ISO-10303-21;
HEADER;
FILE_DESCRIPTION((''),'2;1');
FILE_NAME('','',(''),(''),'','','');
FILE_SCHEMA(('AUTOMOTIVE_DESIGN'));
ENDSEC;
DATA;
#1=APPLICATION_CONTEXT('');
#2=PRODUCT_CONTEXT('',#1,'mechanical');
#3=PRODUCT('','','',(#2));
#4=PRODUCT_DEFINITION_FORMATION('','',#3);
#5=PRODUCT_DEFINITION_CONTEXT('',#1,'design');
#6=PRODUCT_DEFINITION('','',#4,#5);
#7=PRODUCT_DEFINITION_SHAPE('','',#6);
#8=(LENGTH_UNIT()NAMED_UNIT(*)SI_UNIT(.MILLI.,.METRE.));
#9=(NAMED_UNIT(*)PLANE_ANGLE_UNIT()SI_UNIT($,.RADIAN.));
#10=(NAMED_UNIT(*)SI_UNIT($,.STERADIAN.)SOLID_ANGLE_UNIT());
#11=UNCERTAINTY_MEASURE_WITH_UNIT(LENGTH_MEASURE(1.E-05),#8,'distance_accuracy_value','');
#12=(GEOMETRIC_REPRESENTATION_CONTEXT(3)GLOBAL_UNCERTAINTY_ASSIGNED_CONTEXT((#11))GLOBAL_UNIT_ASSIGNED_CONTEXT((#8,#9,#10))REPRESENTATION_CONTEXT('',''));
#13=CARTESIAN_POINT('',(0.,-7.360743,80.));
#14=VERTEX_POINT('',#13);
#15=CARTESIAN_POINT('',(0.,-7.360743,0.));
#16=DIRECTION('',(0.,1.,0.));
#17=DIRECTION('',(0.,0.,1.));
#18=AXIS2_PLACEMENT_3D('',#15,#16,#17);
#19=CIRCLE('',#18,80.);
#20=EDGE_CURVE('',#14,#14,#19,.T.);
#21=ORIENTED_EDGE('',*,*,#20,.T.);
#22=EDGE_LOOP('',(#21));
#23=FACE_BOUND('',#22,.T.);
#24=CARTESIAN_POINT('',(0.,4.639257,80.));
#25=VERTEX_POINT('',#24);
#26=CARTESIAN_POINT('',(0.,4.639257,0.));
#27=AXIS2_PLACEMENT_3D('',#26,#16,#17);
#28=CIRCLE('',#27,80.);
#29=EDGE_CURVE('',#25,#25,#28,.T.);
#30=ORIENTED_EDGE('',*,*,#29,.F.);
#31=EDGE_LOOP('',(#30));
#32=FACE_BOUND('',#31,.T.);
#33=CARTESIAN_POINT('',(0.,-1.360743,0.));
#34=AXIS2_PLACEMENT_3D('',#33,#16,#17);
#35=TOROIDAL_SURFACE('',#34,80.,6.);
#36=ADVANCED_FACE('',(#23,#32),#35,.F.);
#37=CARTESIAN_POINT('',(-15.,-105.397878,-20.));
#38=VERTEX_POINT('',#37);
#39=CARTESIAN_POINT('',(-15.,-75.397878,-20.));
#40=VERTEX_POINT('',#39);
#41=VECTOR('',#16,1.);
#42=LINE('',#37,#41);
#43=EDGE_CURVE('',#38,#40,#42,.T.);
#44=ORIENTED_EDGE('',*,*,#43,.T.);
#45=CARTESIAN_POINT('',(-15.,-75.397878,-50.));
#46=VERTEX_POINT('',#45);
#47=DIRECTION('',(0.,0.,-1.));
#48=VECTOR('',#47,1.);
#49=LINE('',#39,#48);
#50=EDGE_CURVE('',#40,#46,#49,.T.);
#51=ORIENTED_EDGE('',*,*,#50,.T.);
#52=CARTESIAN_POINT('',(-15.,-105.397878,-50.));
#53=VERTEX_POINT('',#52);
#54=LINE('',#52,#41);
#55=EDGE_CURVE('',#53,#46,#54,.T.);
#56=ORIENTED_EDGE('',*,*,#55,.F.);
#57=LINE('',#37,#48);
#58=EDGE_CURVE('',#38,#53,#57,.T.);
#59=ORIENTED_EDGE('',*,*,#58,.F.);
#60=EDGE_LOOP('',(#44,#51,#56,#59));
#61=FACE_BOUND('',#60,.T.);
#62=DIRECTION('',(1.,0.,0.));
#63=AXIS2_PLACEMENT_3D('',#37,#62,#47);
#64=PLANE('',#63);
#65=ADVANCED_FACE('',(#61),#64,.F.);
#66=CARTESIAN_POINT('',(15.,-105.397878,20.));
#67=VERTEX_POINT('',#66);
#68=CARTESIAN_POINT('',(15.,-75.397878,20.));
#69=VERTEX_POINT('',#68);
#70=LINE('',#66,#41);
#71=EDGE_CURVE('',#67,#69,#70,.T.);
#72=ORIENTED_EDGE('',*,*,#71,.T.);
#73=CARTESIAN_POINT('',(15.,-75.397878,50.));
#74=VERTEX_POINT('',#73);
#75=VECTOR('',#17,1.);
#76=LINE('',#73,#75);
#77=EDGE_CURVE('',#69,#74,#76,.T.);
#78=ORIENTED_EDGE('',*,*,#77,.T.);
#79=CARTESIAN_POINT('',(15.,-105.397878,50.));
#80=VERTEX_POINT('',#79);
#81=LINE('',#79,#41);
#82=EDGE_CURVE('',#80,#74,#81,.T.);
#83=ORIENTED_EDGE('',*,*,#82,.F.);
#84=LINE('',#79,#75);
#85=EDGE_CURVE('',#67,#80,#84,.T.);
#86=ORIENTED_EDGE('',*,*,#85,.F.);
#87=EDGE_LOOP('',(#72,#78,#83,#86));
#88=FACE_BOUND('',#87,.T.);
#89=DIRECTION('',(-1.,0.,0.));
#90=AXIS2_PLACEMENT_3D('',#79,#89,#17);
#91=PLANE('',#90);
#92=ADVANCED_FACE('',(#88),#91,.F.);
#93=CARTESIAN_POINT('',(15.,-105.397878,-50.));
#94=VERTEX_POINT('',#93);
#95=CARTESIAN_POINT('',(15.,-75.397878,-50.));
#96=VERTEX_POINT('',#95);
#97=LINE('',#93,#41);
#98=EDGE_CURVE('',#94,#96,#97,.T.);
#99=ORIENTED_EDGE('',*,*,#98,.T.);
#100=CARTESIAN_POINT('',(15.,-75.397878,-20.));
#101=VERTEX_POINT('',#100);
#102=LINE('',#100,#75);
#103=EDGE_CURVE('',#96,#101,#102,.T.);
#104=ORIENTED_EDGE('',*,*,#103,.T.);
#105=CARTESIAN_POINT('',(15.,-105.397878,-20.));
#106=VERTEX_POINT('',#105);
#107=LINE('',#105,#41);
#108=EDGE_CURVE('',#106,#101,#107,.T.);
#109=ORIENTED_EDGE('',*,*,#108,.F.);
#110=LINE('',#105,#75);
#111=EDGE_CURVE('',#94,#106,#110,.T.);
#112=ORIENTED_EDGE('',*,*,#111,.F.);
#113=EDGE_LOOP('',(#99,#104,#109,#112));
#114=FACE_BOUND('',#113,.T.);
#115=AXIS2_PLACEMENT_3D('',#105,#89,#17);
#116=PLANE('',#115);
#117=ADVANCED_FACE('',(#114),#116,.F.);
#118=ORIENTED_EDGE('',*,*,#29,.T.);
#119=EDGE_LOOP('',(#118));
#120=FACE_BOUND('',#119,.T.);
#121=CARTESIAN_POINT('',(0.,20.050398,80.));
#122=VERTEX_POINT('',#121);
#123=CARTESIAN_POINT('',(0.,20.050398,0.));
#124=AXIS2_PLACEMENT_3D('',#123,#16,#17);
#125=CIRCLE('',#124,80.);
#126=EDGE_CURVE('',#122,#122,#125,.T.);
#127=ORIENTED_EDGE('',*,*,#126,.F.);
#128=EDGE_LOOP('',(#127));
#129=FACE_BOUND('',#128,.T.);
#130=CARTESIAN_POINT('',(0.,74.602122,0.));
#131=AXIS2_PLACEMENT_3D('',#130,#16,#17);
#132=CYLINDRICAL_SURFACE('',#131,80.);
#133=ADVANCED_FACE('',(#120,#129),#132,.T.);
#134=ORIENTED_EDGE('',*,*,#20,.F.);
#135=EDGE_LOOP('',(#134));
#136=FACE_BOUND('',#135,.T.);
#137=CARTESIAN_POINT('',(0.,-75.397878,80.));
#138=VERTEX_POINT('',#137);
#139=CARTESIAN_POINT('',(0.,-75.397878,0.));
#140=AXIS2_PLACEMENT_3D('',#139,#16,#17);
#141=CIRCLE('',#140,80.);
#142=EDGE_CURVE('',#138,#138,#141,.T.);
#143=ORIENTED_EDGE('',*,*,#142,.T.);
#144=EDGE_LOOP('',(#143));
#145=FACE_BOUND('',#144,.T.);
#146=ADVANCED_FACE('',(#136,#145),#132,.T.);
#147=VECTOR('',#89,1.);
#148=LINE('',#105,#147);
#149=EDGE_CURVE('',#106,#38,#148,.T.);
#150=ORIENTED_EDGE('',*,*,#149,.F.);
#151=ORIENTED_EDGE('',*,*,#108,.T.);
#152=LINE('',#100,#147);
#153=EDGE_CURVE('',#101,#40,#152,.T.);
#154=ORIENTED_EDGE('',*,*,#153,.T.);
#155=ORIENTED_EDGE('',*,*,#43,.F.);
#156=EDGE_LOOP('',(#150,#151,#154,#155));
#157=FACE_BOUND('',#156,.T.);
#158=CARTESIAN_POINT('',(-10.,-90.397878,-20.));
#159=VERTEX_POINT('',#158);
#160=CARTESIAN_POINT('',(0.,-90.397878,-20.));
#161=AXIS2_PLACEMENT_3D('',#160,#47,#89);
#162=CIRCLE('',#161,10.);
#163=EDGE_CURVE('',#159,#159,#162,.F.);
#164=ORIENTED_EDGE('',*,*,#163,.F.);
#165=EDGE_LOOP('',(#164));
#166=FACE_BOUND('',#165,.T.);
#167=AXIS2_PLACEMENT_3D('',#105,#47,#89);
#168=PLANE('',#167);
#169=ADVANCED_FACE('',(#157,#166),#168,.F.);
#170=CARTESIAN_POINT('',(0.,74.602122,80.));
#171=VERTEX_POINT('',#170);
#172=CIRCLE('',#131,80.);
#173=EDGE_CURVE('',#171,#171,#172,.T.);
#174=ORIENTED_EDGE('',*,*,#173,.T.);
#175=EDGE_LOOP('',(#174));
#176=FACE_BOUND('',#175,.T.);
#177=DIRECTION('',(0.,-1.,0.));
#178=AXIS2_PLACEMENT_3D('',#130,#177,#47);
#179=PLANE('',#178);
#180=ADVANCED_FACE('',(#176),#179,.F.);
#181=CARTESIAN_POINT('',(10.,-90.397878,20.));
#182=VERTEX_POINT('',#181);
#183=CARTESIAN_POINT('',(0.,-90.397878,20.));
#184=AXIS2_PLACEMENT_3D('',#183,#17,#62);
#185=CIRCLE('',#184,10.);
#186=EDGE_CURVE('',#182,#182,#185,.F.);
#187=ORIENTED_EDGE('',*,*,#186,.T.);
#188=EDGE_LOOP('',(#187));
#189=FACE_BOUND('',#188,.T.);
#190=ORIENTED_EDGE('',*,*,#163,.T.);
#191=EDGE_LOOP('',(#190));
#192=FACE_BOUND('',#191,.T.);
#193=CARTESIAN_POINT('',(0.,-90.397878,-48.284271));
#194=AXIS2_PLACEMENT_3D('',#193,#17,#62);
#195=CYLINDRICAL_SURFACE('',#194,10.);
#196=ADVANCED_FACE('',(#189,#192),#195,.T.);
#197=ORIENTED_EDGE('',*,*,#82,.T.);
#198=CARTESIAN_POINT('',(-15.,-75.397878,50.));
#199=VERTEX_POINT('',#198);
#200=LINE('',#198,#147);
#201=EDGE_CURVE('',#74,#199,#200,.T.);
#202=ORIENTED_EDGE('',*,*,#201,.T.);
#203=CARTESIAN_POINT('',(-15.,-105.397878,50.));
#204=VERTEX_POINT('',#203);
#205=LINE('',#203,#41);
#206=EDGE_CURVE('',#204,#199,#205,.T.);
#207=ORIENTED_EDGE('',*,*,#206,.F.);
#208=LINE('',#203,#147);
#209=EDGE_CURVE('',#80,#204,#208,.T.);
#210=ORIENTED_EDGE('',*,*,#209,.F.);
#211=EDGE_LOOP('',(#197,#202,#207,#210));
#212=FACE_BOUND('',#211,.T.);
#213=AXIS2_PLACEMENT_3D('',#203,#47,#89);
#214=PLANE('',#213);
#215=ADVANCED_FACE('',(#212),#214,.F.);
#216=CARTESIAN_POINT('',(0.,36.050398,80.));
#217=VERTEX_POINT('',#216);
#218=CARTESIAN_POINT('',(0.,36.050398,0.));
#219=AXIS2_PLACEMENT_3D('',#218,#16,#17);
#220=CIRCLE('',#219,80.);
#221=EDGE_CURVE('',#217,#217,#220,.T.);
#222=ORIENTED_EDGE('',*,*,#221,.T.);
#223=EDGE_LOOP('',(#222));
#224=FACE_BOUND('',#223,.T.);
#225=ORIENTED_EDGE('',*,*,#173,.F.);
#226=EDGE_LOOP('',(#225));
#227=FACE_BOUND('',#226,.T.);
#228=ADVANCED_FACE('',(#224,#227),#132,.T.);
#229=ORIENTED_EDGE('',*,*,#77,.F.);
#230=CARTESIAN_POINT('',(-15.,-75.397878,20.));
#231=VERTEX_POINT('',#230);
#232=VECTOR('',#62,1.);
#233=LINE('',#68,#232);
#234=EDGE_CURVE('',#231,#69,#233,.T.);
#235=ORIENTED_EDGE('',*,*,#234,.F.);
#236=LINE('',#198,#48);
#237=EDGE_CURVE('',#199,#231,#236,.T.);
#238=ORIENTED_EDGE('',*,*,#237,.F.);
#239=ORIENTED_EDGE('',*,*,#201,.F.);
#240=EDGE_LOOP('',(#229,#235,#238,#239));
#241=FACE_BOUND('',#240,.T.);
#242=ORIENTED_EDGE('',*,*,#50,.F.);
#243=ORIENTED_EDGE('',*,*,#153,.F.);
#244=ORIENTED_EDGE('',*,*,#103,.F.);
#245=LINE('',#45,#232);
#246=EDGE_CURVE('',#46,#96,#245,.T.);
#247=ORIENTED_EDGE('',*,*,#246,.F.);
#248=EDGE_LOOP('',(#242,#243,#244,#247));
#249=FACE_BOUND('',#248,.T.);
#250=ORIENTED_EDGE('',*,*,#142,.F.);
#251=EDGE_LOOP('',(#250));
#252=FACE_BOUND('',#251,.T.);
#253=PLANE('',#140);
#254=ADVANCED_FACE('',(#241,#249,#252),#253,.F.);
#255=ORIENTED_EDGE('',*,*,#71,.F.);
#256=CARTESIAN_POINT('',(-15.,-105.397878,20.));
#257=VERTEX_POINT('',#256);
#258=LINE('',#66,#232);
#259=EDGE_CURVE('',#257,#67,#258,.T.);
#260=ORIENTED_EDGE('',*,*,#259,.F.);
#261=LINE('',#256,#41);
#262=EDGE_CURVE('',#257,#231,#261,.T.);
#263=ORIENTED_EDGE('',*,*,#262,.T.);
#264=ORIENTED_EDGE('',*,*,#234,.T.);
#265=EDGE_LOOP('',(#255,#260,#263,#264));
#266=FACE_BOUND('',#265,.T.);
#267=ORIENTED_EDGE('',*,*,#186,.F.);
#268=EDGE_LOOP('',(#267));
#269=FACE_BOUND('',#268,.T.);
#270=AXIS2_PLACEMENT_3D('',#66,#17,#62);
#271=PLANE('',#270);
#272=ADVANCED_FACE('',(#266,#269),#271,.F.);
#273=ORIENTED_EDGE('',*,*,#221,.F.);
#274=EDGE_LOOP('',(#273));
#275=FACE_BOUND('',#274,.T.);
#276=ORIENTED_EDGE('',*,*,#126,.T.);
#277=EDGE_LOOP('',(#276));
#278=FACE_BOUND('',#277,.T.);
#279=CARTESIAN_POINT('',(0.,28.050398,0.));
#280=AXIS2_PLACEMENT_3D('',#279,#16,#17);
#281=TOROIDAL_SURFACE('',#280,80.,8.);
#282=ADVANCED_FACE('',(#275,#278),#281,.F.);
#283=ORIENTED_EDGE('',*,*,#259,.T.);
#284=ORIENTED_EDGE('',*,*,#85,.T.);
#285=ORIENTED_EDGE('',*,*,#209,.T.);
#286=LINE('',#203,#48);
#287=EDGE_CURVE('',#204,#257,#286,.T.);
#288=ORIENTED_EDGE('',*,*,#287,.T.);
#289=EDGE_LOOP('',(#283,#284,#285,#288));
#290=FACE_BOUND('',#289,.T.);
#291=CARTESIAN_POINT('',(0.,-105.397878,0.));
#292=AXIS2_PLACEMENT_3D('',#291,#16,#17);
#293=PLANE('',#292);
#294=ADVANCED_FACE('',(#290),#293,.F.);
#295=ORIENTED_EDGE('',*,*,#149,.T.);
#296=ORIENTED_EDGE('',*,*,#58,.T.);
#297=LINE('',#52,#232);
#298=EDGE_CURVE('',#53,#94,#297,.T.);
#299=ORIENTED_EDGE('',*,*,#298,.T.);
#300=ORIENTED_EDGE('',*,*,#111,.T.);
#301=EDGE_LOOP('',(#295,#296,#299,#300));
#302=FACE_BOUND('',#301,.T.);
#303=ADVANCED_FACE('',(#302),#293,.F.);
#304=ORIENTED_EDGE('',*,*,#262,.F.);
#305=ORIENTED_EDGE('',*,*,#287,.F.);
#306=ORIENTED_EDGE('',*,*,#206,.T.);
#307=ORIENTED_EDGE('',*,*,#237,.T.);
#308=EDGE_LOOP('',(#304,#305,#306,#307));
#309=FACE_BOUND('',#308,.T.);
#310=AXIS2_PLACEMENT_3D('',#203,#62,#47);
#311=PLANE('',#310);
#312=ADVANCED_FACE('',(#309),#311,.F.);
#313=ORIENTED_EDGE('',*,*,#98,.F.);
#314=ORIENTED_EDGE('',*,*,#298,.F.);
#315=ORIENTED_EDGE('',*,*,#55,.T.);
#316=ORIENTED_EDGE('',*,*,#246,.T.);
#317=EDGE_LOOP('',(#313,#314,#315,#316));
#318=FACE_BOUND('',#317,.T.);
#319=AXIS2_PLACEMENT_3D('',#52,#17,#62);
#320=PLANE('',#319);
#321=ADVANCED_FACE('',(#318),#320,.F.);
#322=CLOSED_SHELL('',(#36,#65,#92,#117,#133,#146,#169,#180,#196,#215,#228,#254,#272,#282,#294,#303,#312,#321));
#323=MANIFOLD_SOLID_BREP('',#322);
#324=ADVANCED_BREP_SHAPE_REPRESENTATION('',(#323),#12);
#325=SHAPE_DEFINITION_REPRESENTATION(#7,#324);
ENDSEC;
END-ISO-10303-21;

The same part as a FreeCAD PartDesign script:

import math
import FreeCAD as App
import Part
import Sketcher


def add_polygon(sketch, points):
    """Adds a closed chain of lines whose ends are joined by coincident constraints."""
    first, n = sketch.GeometryCount, len(points)
    for a, b in zip(points, points[1:] + points[:1]):
        sketch.addGeometry(Part.LineSegment(App.Vector(*a, 0), App.Vector(*b, 0)), False)
    for i in range(n):
        sketch.addConstraint(Sketcher.Constraint("Coincident", first + i, 2, first + (i + 1) % n, 1))

doc = App.newDocument("Part")
body = doc.addObject("PartDesign::Body", "Body")

# Sketch on XY plane
sketch1 = body.newObject("Sketcher::SketchObject", "Sketch")
sketch1.AttachmentSupport = (doc.getObject("XY_Plane"), [""])
sketch1.MapMode = "FlatFace"
sketch1.addGeometry([
    Part.LineSegment(App.Vector(0, 75, 0), App.Vector(0, -75, 0)),  # 0
    Part.LineSegment(App.Vector(0, -75, 0), App.Vector(80, -75, 0)),  # 1
    Part.LineSegment(App.Vector(80, -75, 0), App.Vector(80, -7, 0)),  # 2
    Part.ArcOfCircle(Part.Circle(App.Vector(80, -1, 0), App.Vector(0, 0, 1), 6), math.radians(90), math.radians(270)),  # 3
    Part.LineSegment(App.Vector(80, 5, 0), App.Vector(80, 20, 0)),  # 4
    Part.ArcOfCircle(Part.Circle(App.Vector(80, 28, 0), App.Vector(0, 0, 1), 8), math.radians(90), math.radians(270)),  # 5
    Part.LineSegment(App.Vector(80, 36, 0), App.Vector(80, 75, 0)),  # 6
    Part.LineSegment(App.Vector(80, 75, 0), App.Vector(0, 75, 0)),  # 7
], False)
sketch1.addConstraint([
    Sketcher.Constraint("Coincident", 0, 2, 1, 1),
    Sketcher.Constraint("Coincident", 1, 2, 2, 1),
    Sketcher.Constraint("Coincident", 2, 2, 3, 2),
    Sketcher.Constraint("Coincident", 3, 1, 4, 1),
    Sketcher.Constraint("Coincident", 4, 2, 5, 2),
    Sketcher.Constraint("Coincident", 5, 1, 6, 1),
    Sketcher.Constraint("Coincident", 6, 2, 7, 1),
    Sketcher.Constraint("Coincident", 7, 2, 0, 1),
    Sketcher.Constraint("Vertical", 0),
    Sketcher.Constraint("Horizontal", 1),
    Sketcher.Constraint("Vertical", 2),
    Sketcher.Constraint("Vertical", 4),
    Sketcher.Constraint("Vertical", 6),
    Sketcher.Constraint("Horizontal", 7),
    Sketcher.Constraint("PointOnObject", 0, 2, -2),
    Sketcher.Constraint("Vertical", 3, 3, 5, 3),
    Sketcher.Constraint("Vertical", 5, 3, 1, 2),
    Sketcher.Constraint("Vertical", 2, 2, 3, 1),
    Sketcher.Constraint("Vertical", 4, 2, 5, 1),
    Sketcher.Constraint("Radius", 3, 6.0),
    Sketcher.Constraint("Radius", 5, 8.0),
    Sketcher.Constraint("DistanceX", 1, 1, 1, 2, 80.0),
    Sketcher.Constraint("DistanceY", 0, 2, 0, 1, 150.0),
    Sketcher.Constraint("DistanceY", 4, 1, 4, 2, 15.411141),
    Sketcher.Constraint("DistanceY", 2, 1, 2, 2, 68.037135),
    Sketcher.Constraint("DistanceY", 3, 3, -1, 1, 1.360743),
])
revolution = body.newObject("PartDesign::Revolution", "Revolution")
revolution.Profile = sketch1
revolution.ReferenceAxis = (sketch1, ["V_Axis"])
revolution.Angle = 360

# Sketch on XZ plane
sketch2 = body.newObject("Sketcher::SketchObject", "Sketch001")
sketch2.AttachmentSupport = (doc.getObject("XZ_Plane"), [""])
sketch2.MapMode = "FlatFace"
sketch2.AttachmentOffset = App.Placement(App.Vector(0, 0, 75.397878), App.Rotation())
add_polygon(sketch2, [(-15, -20), (-15, -50), (15, -50), (15, -20)])  # lines 0-3
add_polygon(sketch2, [(-15, 50), (-15, 20), (15, 20), (15, 50)])  # lines 4-7
sketch2.addConstraint([
    Sketcher.Constraint("Vertical", 0),
    Sketcher.Constraint("Horizontal", 1),
    Sketcher.Constraint("Vertical", 2),
    Sketcher.Constraint("Horizontal", 3),
    Sketcher.Constraint("Vertical", 4),
    Sketcher.Constraint("Horizontal", 5),
    Sketcher.Constraint("Vertical", 6),
    Sketcher.Constraint("Horizontal", 7),
    Sketcher.Constraint("Symmetric", 2, 2, 4, 2, -1, 1),
    Sketcher.Constraint("Symmetric", 0, 2, 6, 2, -1, 1),
    Sketcher.Constraint("Vertical", 3, 2, 4, 2),
    Sketcher.Constraint("Equal", 7, 0),
    Sketcher.Constraint("DistanceX", 1, 1, 1, 2, 30.0),
    Sketcher.Constraint("DistanceY", 0, 2, -1, 1, 50.0),
])
pad1 = body.newObject("PartDesign::Pad", "Pad")
pad1.Profile = sketch2
pad1.Length = 30

# Sketch on XY plane
sketch3 = body.newObject("Sketcher::SketchObject", "Sketch002")
sketch3.AttachmentSupport = (doc.getObject("XY_Plane"), [""])
sketch3.MapMode = "FlatFace"
sketch3.AttachmentOffset = App.Placement(App.Vector(0, 0, 20), App.Rotation())
sketch3.addGeometry(Part.Circle(App.Vector(0, -90, 0), App.Vector(0, 0, 1), 10), False)
sketch3.addConstraint([
    Sketcher.Constraint("PointOnObject", 0, 3, -2),
    Sketcher.Constraint("Diameter", 0, 20.0),
    Sketcher.Constraint("DistanceY", 0, 3, -1, 1, 90.397878),
])
pad2 = body.newObject("PartDesign::Pad", "Pad001")
pad2.Profile = sketch3
pad2.Length = 40
pad2.Reversed = True

doc.recompute()
